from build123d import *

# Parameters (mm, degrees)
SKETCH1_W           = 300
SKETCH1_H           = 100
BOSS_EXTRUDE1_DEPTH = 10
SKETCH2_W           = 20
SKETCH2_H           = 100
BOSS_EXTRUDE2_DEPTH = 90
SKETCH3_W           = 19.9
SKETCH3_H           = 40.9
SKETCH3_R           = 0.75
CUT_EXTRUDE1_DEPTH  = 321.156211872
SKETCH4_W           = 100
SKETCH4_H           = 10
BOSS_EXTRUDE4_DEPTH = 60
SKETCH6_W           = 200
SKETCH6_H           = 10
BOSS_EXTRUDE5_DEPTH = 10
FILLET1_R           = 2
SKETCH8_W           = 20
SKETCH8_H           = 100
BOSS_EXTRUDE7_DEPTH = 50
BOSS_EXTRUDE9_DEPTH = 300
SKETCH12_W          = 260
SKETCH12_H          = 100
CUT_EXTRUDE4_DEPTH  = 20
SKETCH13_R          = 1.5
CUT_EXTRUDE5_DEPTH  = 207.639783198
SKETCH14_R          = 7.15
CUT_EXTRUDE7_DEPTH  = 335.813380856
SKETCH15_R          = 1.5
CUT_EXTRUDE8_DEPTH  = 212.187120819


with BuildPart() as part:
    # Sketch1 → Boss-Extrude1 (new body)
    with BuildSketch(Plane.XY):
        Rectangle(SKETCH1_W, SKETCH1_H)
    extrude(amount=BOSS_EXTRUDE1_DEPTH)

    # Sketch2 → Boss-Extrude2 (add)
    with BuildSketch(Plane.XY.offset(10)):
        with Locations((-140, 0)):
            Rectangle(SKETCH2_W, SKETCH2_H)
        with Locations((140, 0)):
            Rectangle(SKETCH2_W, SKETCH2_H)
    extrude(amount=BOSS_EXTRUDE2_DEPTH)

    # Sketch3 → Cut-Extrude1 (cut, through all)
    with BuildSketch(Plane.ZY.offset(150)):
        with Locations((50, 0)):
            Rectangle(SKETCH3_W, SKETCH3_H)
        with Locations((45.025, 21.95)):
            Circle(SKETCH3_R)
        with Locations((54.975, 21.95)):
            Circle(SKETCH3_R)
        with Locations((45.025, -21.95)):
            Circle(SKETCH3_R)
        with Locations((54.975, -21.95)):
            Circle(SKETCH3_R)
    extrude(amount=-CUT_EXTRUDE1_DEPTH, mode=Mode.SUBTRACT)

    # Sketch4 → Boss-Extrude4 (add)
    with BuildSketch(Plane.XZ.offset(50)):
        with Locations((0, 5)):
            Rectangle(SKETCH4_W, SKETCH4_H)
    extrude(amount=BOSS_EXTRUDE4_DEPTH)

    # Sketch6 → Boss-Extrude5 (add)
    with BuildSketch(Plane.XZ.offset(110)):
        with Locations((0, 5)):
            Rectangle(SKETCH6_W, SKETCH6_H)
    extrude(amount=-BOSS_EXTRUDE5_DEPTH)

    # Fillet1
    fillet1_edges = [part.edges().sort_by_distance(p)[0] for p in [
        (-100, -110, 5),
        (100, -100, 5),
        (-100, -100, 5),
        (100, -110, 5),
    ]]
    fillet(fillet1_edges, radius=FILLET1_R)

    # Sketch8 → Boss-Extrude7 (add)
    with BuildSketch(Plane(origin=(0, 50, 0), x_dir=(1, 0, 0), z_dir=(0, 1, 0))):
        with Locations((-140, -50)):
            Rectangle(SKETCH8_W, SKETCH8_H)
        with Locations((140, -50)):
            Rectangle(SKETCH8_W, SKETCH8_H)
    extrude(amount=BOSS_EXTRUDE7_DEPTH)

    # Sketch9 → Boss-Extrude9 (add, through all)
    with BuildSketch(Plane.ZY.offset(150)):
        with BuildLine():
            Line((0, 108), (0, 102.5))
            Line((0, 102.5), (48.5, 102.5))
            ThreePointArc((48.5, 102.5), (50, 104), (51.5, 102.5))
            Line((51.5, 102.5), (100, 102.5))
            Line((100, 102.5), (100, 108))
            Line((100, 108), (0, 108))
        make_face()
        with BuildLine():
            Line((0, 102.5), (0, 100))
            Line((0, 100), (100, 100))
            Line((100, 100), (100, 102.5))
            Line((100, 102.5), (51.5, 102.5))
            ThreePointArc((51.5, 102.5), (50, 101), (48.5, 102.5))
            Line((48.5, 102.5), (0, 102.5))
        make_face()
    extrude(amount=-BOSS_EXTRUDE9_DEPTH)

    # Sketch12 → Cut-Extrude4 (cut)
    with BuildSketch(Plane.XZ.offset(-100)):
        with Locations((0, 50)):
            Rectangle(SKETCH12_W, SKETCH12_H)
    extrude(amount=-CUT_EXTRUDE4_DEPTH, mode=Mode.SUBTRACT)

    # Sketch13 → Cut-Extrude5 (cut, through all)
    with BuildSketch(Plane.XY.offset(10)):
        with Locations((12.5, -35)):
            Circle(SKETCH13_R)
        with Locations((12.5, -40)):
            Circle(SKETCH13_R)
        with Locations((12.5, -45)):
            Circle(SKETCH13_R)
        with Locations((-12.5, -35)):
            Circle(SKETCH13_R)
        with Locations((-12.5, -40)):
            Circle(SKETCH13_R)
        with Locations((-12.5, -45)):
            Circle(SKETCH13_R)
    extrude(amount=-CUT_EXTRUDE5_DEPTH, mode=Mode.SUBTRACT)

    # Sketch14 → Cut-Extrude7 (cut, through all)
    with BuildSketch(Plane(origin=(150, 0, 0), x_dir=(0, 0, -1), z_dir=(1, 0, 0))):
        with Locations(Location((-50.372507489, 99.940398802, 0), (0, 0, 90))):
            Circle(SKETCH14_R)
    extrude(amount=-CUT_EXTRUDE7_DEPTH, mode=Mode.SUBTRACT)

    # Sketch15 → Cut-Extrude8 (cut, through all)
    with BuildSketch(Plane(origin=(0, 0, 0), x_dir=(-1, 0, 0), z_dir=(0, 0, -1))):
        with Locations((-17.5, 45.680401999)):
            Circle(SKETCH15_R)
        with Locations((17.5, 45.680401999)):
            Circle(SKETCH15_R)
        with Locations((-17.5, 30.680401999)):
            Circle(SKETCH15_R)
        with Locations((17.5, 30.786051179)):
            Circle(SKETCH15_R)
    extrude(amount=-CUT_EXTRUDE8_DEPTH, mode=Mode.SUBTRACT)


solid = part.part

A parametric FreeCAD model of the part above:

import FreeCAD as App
import Part
import Sketcher
Q = App.Units.Quantity


def edges_at(feature, points):
    """Names of the edges that pass closest to the given points."""
    edges = feature.Shape.Edges
    near = lambda p: min(range(len(edges)), key=lambda i: edges[i].distToShape(Part.Vertex(*p))[0])
    return sorted({f"Edge{near(p) + 1}" for p in points})


def add_polygon(sketch, points):
    """Adds a closed chain of lines whose ends are joined by coincident constraints."""
    first, n = sketch.GeometryCount, len(points)
    for a, b in zip(points, points[1:] + points[:1]):
        sketch.addGeometry(Part.LineSegment(App.Vector(*a, 0), App.Vector(*b, 0)), False)
    for i in range(n):
        sketch.addConstraint(Sketcher.Constraint("Coincident", first + i, 2, first + (i + 1) % n, 1))

doc = App.newDocument("Part")
body = doc.addObject("PartDesign::Body", "Body")

# Sketch on XY plane
sketch1 = body.newObject("Sketcher::SketchObject", "Sketch")
sketch1.AttachmentSupport = (doc.getObject("XY_Plane"), [""])
sketch1.MapMode = "FlatFace"
add_polygon(sketch1, [(-150, 50), (-150, -50), (150, -50), (150, 50)])  # lines 0-3
sketch1.addConstraint([
    Sketcher.Constraint("Vertical", 0),
    Sketcher.Constraint("Horizontal", 1),
    Sketcher.Constraint("Vertical", 2),
    Sketcher.Constraint("Horizontal", 3),
    Sketcher.Constraint("Symmetric", 0, 2, 2, 2, -1, 1),
    Sketcher.Constraint("DistanceX", 1, 1, 1, 2, Q("300 mm")),
    Sketcher.Constraint("DistanceY", 0, 2, 0, 1, Q("100 mm")),
])
pad1 = body.newObject("PartDesign::Pad", "Pad")
pad1.Profile = sketch1
pad1.Length = 10

# Sketch on XY plane
sketch2 = body.newObject("Sketcher::SketchObject", "Sketch001")
sketch2.AttachmentSupport = (doc.getObject("XY_Plane"), [""])
sketch2.MapMode = "FlatFace"
sketch2.AttachmentOffset = App.Placement(App.Vector(0, 0, 10), App.Rotation())
add_polygon(sketch2, [(-150, 50), (-150, -50), (-130, -50), (-130, 50)])  # lines 0-3
add_polygon(sketch2, [(130, 50), (130, -50), (150, -50), (150, 50)])  # lines 4-7
sketch2.addConstraint([
    Sketcher.Constraint("Vertical", 0),
    Sketcher.Constraint("Horizontal", 1),
    Sketcher.Constraint("Vertical", 2),
    Sketcher.Constraint("Horizontal", 3),
    Sketcher.Constraint("Vertical", 4),
    Sketcher.Constraint("Horizontal", 5),
    Sketcher.Constraint("Vertical", 6),
    Sketcher.Constraint("Horizontal", 7),
    Sketcher.Constraint("Symmetric", 2, 2, 4, 2, -1, 1),
    Sketcher.Constraint("Symmetric", 0, 2, 6, 2, -1, 1),
    Sketcher.Constraint("Horizontal", 1, 2, 4, 2),
    Sketcher.Constraint("DistanceX", 1, 1, 1, 2, Q("20 mm")),
    Sketcher.Constraint("DistanceY", 0, 2, 0, 1, Q("100 mm")),
    Sketcher.Constraint("DistanceX", 0, 2, -1, 1, Q("150 mm")),
])
pad2 = body.newObject("PartDesign::Pad", "Pad001")
pad2.Profile = sketch2
pad2.Length = 90

# Sketch on YZ plane
sketch3 = body.newObject("Sketcher::SketchObject", "Sketch002")
sketch3.AttachmentSupport = (doc.getObject("YZ_Plane"), [""])
sketch3.MapMode = "FlatFace"
sketch3.AttachmentOffset = App.Placement(App.Vector(0, 0, -150), App.Rotation())
add_polygon(sketch3, [(20.45, 40.05), (-20.45, 40.05), (-20.45, 59.95), (20.45, 59.95)])  # lines 0-3
sketch3.addGeometry(Part.Circle(App.Vector(21.95, 45.025, 0), App.Vector(0, 0, 1), 0.75), False)  # 4
sketch3.addGeometry(Part.Circle(App.Vector(21.95, 54.975, 0), App.Vector(0, 0, 1), 0.75), False)  # 5
sketch3.addGeometry(Part.Circle(App.Vector(-21.95, 45.025, 0), App.Vector(0, 0, 1), 0.75), False)  # 6
sketch3.addGeometry(Part.Circle(App.Vector(-21.95, 54.975, 0), App.Vector(0, 0, 1), 0.75), False)  # 7
sketch3.addConstraint([
    Sketcher.Constraint("Horizontal", 0),
    Sketcher.Constraint("Vertical", 1),
    Sketcher.Constraint("Horizontal", 2),
    Sketcher.Constraint("Vertical", 3),
    Sketcher.Constraint("Equal", 4, 5),
    Sketcher.Constraint("Equal", 5, 6),
    Sketcher.Constraint("Equal", 6, 7),
    Sketcher.Constraint("Symmetric", 4, 3, 6, 3, -2),
    Sketcher.Constraint("Symmetric", 5, 3, 7, 3, -2),
    Sketcher.Constraint("Vertical", 4, 3, 5, 3),
    Sketcher.Constraint("Diameter", 4, Q("1.5 mm")),
    Sketcher.Constraint("DistanceX", 0, 2, 0, 1, Q("40.9 mm")),
    Sketcher.Constraint("DistanceY", 1, 1, 1, 2, Q("19.9 mm")),
    Sketcher.Constraint("DistanceX", 6, 3, 4, 3, Q("43.9 mm")),
    Sketcher.Constraint("DistanceX", 6, 3, 0, 2, Q("1.5 mm")),
    Sketcher.Constraint("DistanceY", -1, 1, 0, 2, Q("40.05 mm")),
    Sketcher.Constraint("DistanceY", 4, 3, 5, 3, Q("9.95 mm")),
    Sketcher.Constraint("DistanceY", -1, 1, 4, 3, Q("45.025 mm")),
])
pocket1 = body.newObject("PartDesign::Pocket", "Pocket")
pocket1.Profile = sketch3
pocket1.Type = "ThroughAll"
pocket1.Reversed = True

# Sketch on XZ plane
sketch4 = body.newObject("Sketcher::SketchObject", "Sketch003")
sketch4.AttachmentSupport = (doc.getObject("XZ_Plane"), [""])
sketch4.MapMode = "FlatFace"
sketch4.AttachmentOffset = App.Placement(App.Vector(0, 0, 50), App.Rotation())
add_polygon(sketch4, [(-50, 10), (-50, 0), (50, 0), (50, 10)])  # lines 0-3
sketch4.addConstraint([
    Sketcher.Constraint("Vertical", 0),
    Sketcher.Constraint("Horizontal", 1),
    Sketcher.Constraint("Vertical", 2),
    Sketcher.Constraint("Horizontal", 3),
    Sketcher.Constraint("Symmetric", 0, 2, 1, 2, -1, 1),
    Sketcher.Constraint("DistanceX", 1, 1, 1, 2, Q("100 mm")),
    Sketcher.Constraint("DistanceY", 0, 2, 0, 1, Q("10 mm")),
])
pad3 = body.newObject("PartDesign::Pad", "Pad002")
pad3.Profile = sketch4
pad3.Length = 60

# Sketch on XZ plane
sketch5 = body.newObject("Sketcher::SketchObject", "Sketch004")
sketch5.AttachmentSupport = (doc.getObject("XZ_Plane"), [""])
sketch5.MapMode = "FlatFace"
sketch5.AttachmentOffset = App.Placement(App.Vector(0, 0, 110), App.Rotation())
add_polygon(sketch5, [(-100, 10), (-100, 0), (100, 0), (100, 10)])  # lines 0-3
sketch5.addConstraint([
    Sketcher.Constraint("Vertical", 0),
    Sketcher.Constraint("Horizontal", 1),
    Sketcher.Constraint("Vertical", 2),
    Sketcher.Constraint("Horizontal", 3),
    Sketcher.Constraint("Symmetric", 0, 2, 1, 2, -1, 1),
    Sketcher.Constraint("DistanceX", 1, 1, 1, 2, Q("200 mm")),
    Sketcher.Constraint("DistanceY", 0, 2, 0, 1, Q("10 mm")),
])
pad4 = body.newObject("PartDesign::Pad", "Pad003")
pad4.Profile = sketch5
pad4.Length = 10
pad4.Reversed = True
doc.recompute()

fillet = body.newObject("PartDesign::Fillet", "Fillet")
fillet.Base = (pad4, edges_at(pad4, [
    (-100, -110, 5),
    (100, -100, 5),
    (-100, -100, 5),
    (100, -110, 5),
]))
fillet.Radius = 2

# Sketch on XZ plane
sketch6 = body.newObject("Sketcher::SketchObject", "Sketch005")
sketch6.AttachmentSupport = (doc.getObject("XZ_Plane"), [""])
sketch6.MapMode = "FlatFace"
sketch6.AttachmentOffset = App.Placement(App.Vector(0, 0, -50), App.Rotation())
add_polygon(sketch6, [(-150, 0), (-150, 100), (-130, 100), (-130, 0)])  # lines 0-3
add_polygon(sketch6, [(130, 0), (130, 100), (150, 100), (150, 0)])  # lines 4-7
sketch6.addConstraint([
    Sketcher.Constraint("Vertical", 0),
    Sketcher.Constraint("Horizontal", 1),
    Sketcher.Constraint("Vertical", 2),
    Sketcher.Constraint("Horizontal", 3),
    Sketcher.Constraint("Vertical", 4),
    Sketcher.Constraint("Horizontal", 5),
    Sketcher.Constraint("Vertical", 6),
    Sketcher.Constraint("Horizontal", 7),
    Sketcher.Constraint("Symmetric", 3, 2, 6, 2, -1, 1),
    Sketcher.Constraint("Symmetric", 1, 2, 4, 2, -2),
    Sketcher.Constraint("PointOnObject", 2, 2, -1),
    Sketcher.Constraint("DistanceX", 1, 1, 1, 2, Q("20 mm")),
    Sketcher.Constraint("DistanceY", 0, 1, 0, 2, Q("100 mm")),
    Sketcher.Constraint("DistanceX", 0, 2, -1, 1, Q("150 mm")),
])
pad5 = body.newObject("PartDesign::Pad", "Pad004")
pad5.Profile = sketch6
pad5.Length = 50
pad5.Reversed = True

# Sketch on YZ plane
sketch7 = body.newObject("Sketcher::SketchObject", "Sketch006")
sketch7.AttachmentSupport = (doc.getObject("YZ_Plane"), [""])
sketch7.MapMode = "FlatFace"
sketch7.AttachmentOffset = App.Placement(App.Vector(0, 0, -150), App.Rotation())
add_polygon(sketch7, [(108, 0), (100, 0), (100, 100), (108, 100)])  # lines 0-3
sketch7.addGeometry(Part.Circle(App.Vector(102.5, 50, 0), App.Vector(0, 0, 1), 1.5), False)  # 4
sketch7.addConstraint([
    Sketcher.Constraint("Horizontal", 0),
    Sketcher.Constraint("Vertical", 1),
    Sketcher.Constraint("Horizontal", 2),
    Sketcher.Constraint("Vertical", 3),
    Sketcher.Constraint("PointOnObject", 0, 2, -1),
    Sketcher.Constraint("Diameter", 4, Q("3 mm")),
    Sketcher.Constraint("DistanceX", 0, 2, 0, 1, Q("8 mm")),
    Sketcher.Constraint("DistanceY", 1, 1, 1, 2, Q("100 mm")),
    Sketcher.Constraint("DistanceY", -1, 1, 4, 3, Q("50 mm")),
    Sketcher.Constraint("DistanceX", -1, 1, 0, 2, Q("100 mm")),
    Sketcher.Constraint("DistanceX", -1, 1, 4, 3, Q("102.5 mm")),
])
pad6 = body.newObject("PartDesign::Pad", "Pad005")
pad6.Profile = sketch7
pad6.Length = 300

# Sketch on XZ plane
sketch8 = body.newObject("Sketcher::SketchObject", "Sketch007")
sketch8.AttachmentSupport = (doc.getObject("XZ_Plane"), [""])
sketch8.MapMode = "FlatFace"
sketch8.AttachmentOffset = App.Placement(App.Vector(0, 0, -100), App.Rotation())
add_polygon(sketch8, [(-130, 100), (-130, 0), (130, 0), (130, 100)])  # lines 0-3
sketch8.addConstraint([
    Sketcher.Constraint("Vertical", 0),
    Sketcher.Constraint("Horizontal", 1),
    Sketcher.Constraint("Vertical", 2),
    Sketcher.Constraint("Horizontal", 3),
    Sketcher.Constraint("Symmetric", 0, 2, 1, 2, -1, 1),
    Sketcher.Constraint("DistanceX", 1, 1, 1, 2, Q("260 mm")),
    Sketcher.Constraint("DistanceY", 0, 2, 0, 1, Q("100 mm")),
])
pocket2 = body.newObject("PartDesign::Pocket", "Pocket001")
pocket2.Profile = sketch8
pocket2.Length = 20

# Sketch on XY plane
sketch9 = body.newObject("Sketcher::SketchObject", "Sketch008")
sketch9.AttachmentSupport = (doc.getObject("XY_Plane"), [""])
sketch9.MapMode = "FlatFace"
sketch9.AttachmentOffset = App.Placement(App.Vector(0, 0, 10), App.Rotation())
sketch9.addGeometry([
    Part.Circle(App.Vector(12.5, -35, 0), App.Vector(0, 0, 1), 1.5),  # 0
    Part.Circle(App.Vector(12.5, -40, 0), App.Vector(0, 0, 1), 1.5),  # 1
    Part.Circle(App.Vector(12.5, -45, 0), App.Vector(0, 0, 1), 1.5),  # 2
    Part.Circle(App.Vector(-12.5, -35, 0), App.Vector(0, 0, 1), 1.5),  # 3
    Part.Circle(App.Vector(-12.5, -40, 0), App.Vector(0, 0, 1), 1.5),  # 4
    Part.Circle(App.Vector(-12.5, -45, 0), App.Vector(0, 0, 1), 1.5),  # 5
], False)
sketch9.addConstraint([
    Sketcher.Constraint("Equal", 0, 1),
    Sketcher.Constraint("Equal", 1, 2),
    Sketcher.Constraint("Equal", 2, 3),
    Sketcher.Constraint("Equal", 3, 4),
    Sketcher.Constraint("Equal", 4, 5),
    Sketcher.Constraint("Symmetric", 0, 3, 3, 3, -2),
    Sketcher.Constraint("Symmetric", 1, 3, 4, 3, -2),
    Sketcher.Constraint("Symmetric", 2, 3, 5, 3, -2),
    Sketcher.Constraint("Vertical", 0, 3, 1, 3),
    Sketcher.Constraint("Vertical", 1, 3, 2, 3),
    Sketcher.Constraint("Diameter", 0, Q("3 mm")),
    Sketcher.Constraint("DistanceY", 0, 3, -1, 1, Q("35 mm")),
    Sketcher.Constraint("DistanceY", 1, 3, -1, 1, Q("40 mm")),
    Sketcher.Constraint("DistanceY", 2, 3, -1, 1, Q("45 mm")),
    Sketcher.Constraint("DistanceX", 3, 3, 0, 3, Q("25 mm")),
])
pocket3 = body.newObject("PartDesign::Pocket", "Pocket002")
pocket3.Profile = sketch9
pocket3.Type = "ThroughAll"

# Sketch on YZ plane
sketch10 = body.newObject("Sketcher::SketchObject", "Sketch009")
sketch10.AttachmentSupport = (doc.getObject("YZ_Plane"), [""])
sketch10.MapMode = "FlatFace"
sketch10.AttachmentOffset = App.Placement(App.Vector(0, 0, 150), App.Rotation())
sketch10.addGeometry(Part.Circle(App.Vector(99.940399, 50.372507, 0), App.Vector(0, 0, 1), 7.15), False)
sketch10.addConstraint([
    Sketcher.Constraint("Diameter", 0, Q("14.3 mm")),
    Sketcher.Constraint("DistanceX", -1, 1, 0, 3, Q("99.940399 mm")),
    Sketcher.Constraint("DistanceY", -1, 1, 0, 3, Q("50.372507 mm")),
])
pocket4 = body.newObject("PartDesign::Pocket", "Pocket003")
pocket4.Profile = sketch10
pocket4.Type = "ThroughAll"

# Sketch on XY plane
sketch11 = body.newObject("Sketcher::SketchObject", "Sketch010")
sketch11.AttachmentSupport = (doc.getObject("XY_Plane"), [""])
sketch11.MapMode = "FlatFace"
sketch11.addGeometry([
    Part.Circle(App.Vector(17.5, 45.680402, 0), App.Vector(0, 0, 1), 1.5),
    Part.Circle(App.Vector(-17.5, 45.680402, 0), App.Vector(0, 0, 1), 1.5),
    Part.Circle(App.Vector(17.5, 30.680402, 0), App.Vector(0, 0, 1), 1.5),
    Part.Circle(App.Vector(-17.5, 30.786051, 0), App.Vector(0, 0, 1), 1.5),
], False)
sketch11.addConstraint([
    Sketcher.Constraint("Equal", 0, 1),
    Sketcher.Constraint("Equal", 1, 2),
    Sketcher.Constraint("Equal", 2, 3),
    Sketcher.Constraint("Symmetric", 0, 3, 1, 3, -2),
    Sketcher.Constraint("Vertical", 0, 3, 2, 3),
    Sketcher.Constraint("Vertical", 1, 3, 3, 3),
    Sketcher.Constraint("Diameter", 0, Q("3 mm")),
    Sketcher.Constraint("DistanceX", 1, 3, 0, 3, Q("35 mm")),
    Sketcher.Constraint("DistanceY", 2, 3, 0, 3, Q("15 mm")),
    Sketcher.Constraint("DistanceY", -1, 1, 0, 3, Q("45.680402 mm")),
    Sketcher.Constraint("DistanceY", -1, 1, 3, 3, Q("30.786051 mm")),
])
pocket5 = body.newObject("PartDesign::Pocket", "Pocket004")
pocket5.Profile = sketch11
pocket5.Type = "ThroughAll"
pocket5.Reversed = True

doc.recompute()
